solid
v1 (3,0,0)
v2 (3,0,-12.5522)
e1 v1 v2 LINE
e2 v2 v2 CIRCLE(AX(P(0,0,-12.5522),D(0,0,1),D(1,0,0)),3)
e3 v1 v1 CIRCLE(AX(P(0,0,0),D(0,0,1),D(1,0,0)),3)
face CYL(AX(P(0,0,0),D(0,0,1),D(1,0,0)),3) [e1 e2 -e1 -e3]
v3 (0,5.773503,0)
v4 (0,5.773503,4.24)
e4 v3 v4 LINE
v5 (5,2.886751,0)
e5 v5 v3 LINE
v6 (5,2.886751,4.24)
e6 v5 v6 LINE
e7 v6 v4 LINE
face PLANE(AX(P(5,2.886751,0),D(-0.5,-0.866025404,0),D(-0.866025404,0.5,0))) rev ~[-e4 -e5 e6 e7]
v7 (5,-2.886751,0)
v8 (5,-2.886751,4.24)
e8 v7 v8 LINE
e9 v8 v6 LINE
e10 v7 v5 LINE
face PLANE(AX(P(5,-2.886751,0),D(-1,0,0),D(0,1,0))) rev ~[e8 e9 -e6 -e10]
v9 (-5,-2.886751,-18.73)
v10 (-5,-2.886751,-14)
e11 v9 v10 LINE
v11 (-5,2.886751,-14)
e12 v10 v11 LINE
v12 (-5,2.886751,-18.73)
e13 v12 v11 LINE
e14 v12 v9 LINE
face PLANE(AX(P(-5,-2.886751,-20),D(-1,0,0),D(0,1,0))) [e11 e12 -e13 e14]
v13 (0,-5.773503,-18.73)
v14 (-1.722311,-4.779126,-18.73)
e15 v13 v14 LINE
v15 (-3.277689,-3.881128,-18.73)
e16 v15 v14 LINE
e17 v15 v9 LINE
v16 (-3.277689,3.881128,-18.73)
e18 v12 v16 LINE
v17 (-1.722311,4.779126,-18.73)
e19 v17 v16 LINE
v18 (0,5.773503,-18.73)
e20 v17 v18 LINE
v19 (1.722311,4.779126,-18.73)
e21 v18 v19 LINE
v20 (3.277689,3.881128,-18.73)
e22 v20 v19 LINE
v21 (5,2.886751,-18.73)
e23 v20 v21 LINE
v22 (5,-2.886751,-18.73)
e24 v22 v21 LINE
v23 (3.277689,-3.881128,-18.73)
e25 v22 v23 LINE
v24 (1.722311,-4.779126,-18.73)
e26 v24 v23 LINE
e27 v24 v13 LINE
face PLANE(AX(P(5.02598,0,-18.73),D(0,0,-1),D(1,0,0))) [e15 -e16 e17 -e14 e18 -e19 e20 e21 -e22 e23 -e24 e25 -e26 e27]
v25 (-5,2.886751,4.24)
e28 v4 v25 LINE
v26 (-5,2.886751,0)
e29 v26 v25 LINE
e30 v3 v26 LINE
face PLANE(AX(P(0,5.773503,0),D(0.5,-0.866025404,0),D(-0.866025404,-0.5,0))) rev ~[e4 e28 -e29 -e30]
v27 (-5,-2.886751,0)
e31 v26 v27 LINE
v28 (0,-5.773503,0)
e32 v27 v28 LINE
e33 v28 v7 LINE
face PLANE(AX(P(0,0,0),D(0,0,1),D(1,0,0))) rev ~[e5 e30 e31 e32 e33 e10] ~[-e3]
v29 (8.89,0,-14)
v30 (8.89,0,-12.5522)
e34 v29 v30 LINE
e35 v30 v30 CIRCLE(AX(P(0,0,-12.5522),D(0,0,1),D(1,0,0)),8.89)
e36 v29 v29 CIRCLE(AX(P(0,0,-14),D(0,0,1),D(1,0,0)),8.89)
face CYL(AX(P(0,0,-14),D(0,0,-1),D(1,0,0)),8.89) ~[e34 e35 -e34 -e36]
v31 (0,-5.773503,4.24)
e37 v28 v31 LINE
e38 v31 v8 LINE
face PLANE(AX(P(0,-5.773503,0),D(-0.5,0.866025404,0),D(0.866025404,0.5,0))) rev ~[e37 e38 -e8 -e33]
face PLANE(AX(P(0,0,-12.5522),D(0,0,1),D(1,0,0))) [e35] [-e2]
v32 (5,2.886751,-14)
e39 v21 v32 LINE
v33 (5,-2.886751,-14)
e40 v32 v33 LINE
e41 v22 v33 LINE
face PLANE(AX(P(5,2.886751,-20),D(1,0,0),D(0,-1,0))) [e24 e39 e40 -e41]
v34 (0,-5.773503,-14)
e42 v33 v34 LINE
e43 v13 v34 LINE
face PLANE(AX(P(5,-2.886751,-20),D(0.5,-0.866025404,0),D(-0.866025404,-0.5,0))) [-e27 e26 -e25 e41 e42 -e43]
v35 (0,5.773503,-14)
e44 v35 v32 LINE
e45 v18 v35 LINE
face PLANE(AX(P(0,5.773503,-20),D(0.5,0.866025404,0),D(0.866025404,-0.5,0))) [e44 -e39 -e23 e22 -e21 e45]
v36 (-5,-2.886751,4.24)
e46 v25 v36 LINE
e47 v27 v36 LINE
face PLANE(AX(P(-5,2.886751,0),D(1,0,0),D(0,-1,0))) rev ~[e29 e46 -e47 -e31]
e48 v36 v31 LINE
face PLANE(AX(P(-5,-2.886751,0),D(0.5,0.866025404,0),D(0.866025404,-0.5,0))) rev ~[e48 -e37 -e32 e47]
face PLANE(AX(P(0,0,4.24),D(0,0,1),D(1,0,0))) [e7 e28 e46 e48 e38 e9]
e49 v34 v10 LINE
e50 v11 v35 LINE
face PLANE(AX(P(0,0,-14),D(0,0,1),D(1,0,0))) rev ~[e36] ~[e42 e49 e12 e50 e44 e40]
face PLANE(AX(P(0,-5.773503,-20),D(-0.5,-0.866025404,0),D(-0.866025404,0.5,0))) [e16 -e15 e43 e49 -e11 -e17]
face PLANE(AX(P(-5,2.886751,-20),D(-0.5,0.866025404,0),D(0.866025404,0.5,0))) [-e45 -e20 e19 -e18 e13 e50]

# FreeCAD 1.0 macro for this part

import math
import FreeCAD as App
import Part
import Sketcher
Q = App.Units.Quantity


def add_polygon(sketch, points):
    """Adds a closed chain of lines whose ends are joined by coincident constraints."""
    first, n = sketch.GeometryCount, len(points)
    for a, b in zip(points, points[1:] + points[:1]):
        sketch.addGeometry(Part.LineSegment(App.Vector(*a, 0), App.Vector(*b, 0)), False)
    for i in range(n):
        sketch.addConstraint(Sketcher.Constraint("Coincident", first + i, 2, first + (i + 1) % n, 1))

doc = App.newDocument("Part")
params = doc.addObject("Spreadsheet::Sheet", "Params")
for row, (alias, value) in enumerate([
    ("pad1_length", "20 mm"),
    ("pad2_length", "4.24 mm"),
    ("pad3_length", "6 mm"),
    ("sketch4_diameter", "0.7 in"),
    ("pad4_length", "0.057 in"),
    ("sketch5_radius", "0.2 in"),
    ("pocket1_length", "0.05 in"),
], start=1):
    params.set(f"A{row}", alias)
    params.set(f"B{row}", "=" + value)
    params.setAlias(f"B{row}", alias)

body = doc.addObject("PartDesign::Body", "Body")

# Sketch on XY plane
sketch1 = body.newObject("Sketcher::SketchObject", "Sketch")
sketch1.AttachmentSupport = (doc.getObject("XY_Plane"), [""])
sketch1.MapMode = "FlatFace"
sketch1.addGeometry(Part.Circle(App.Vector(0, 0, 0), App.Vector(0, 0, 1), 3), False)
sketch1.addConstraint([
    Sketcher.Constraint("Coincident", 0, 3, -1, 1),
    Sketcher.Constraint("Diameter", 0, 6.0),
])
pad1 = body.newObject("PartDesign::Pad", "Pad")
pad1.Profile = sketch1
pad1.setExpression("Length", "Params.pad1_length")
pad1.Reversed = True

# Sketch on XY plane
sketch2 = body.newObject("Sketcher::SketchObject", "Sketch001")
sketch2.AttachmentSupport = (doc.getObject("XY_Plane"), [""])
sketch2.MapMode = "FlatFace"
add_polygon(sketch2, [(5, 3), (0, 6), (-5, 3), (-5, -3), (0, -6), (5, -3)])  # lines 0-5
sketch2.addConstraint([
    Sketcher.Constraint("Vertical", 2),
    Sketcher.Constraint("Vertical", 5),
    Sketcher.Constraint("Symmetric", 0, 2, 3, 2, -1, 1),
    Sketcher.Constraint("Symmetric", 1, 2, 4, 2, -1, 1),
    Sketcher.Constraint("PointOnObject", 0, 2, -2),
    Sketcher.Constraint("Parallel", 0, 3),
    Sketcher.Constraint("Horizontal", 2, 2, 4, 2),
    Sketcher.Constraint("Angle", 0, Q("150 deg")),
    Sketcher.Constraint("DistanceX", 1, 2, -1, 1, 5.0),
    Sketcher.Constraint("DistanceY", 2, 2, 2, 1, 5.773503),
])
pad2 = body.newObject("PartDesign::Pad", "Pad001")
pad2.Profile = sketch2
pad2.setExpression("Length", "Params.pad2_length")

# Sketch on XY plane
sketch3 = body.newObject("Sketcher::SketchObject", "Sketch002")
sketch3.AttachmentSupport = (doc.getObject("XY_Plane"), [""])
sketch3.MapMode = "FlatFace"
sketch3.AttachmentOffset = App.Placement(App.Vector(0, 0, -20), App.Rotation())
add_polygon(sketch3, [(5, -3), (0, -6), (-5, -3), (-5, 3), (0, 6), (5, 3)])  # lines 0-5
sketch3.addConstraint([
    Sketcher.Constraint("Vertical", 2),
    Sketcher.Constraint("Vertical", 5),
    Sketcher.Constraint("Symmetric", 0, 2, 3, 2, -1, 1),
    Sketcher.Constraint("Symmetric", 1, 2, 4, 2, -1, 1),
    Sketcher.Constraint("PointOnObject", 0, 2, -2),
    Sketcher.Constraint("Parallel", 0, 3),
    Sketcher.Constraint("Horizontal", 2, 2, 4, 2),
    Sketcher.Constraint("Angle", 0, Q("-150 deg")),
    Sketcher.Constraint("DistanceX", 1, 2, -1, 1, 5.0),
    Sketcher.Constraint("DistanceY", 2, 1, 2, 2, 5.773503),
])
pad3 = body.newObject("PartDesign::Pad", "Pad002")
pad3.Profile = sketch3
pad3.setExpression("Length", "Params.pad3_length")

# Sketch on XY plane
sketch4 = body.newObject("Sketcher::SketchObject", "Sketch003")
sketch4.AttachmentSupport = (doc.getObject("XY_Plane"), [""])
sketch4.MapMode = "FlatFace"
sketch4.AttachmentOffset = App.Placement(App.Vector(0, 0, -14), App.Rotation())
sketch4.addGeometry(Part.Circle(App.Vector(0, 0, 0), App.Vector(0, 0, 1), 9), False)
sketch4.addConstraint([
    Sketcher.Constraint("Coincident", 0, 3, -1, 1),
    Sketcher.Constraint("Diameter", 0, Q("0.7 in")),
])
sketch4.setExpression("Constraints[1]", "Params.sketch4_diameter")
pad4 = body.newObject("PartDesign::Pad", "Pad003")
pad4.Profile = sketch4
pad4.setExpression("Length", "Params.pad4_length")

# Sketch on XY plane
sketch5 = body.newObject("Sketcher::SketchObject", "Sketch004")
sketch5.AttachmentSupport = (doc.getObject("XY_Plane"), [""])
sketch5.MapMode = "FlatFace"
sketch5.AttachmentOffset = App.Placement(App.Vector(0, 0, -20), App.Rotation())
sketch5.addGeometry([
    Part.ArcOfCircle(Part.Circle(App.Vector(0, 0, 0), App.Vector(0, 0, 1), 5.1), math.radians(0), math.radians(10.18)),  # 0
    Part.ArcOfCircle(Part.Circle(App.Vector(0, 0, 0), App.Vector(0, 0, 1), 5.1), math.radians(-10.18), math.radians(0)),  # 1
    Part.LineSegment(App.Vector(5, -0.9, 0), App.Vector(5, -2.9, 0)),  # 2
    Part.LineSegment(App.Vector(5, -2.9, 0), App.Vector(3.3, -3.9, 0)),  # 3
    Part.ArcOfCircle(Part.Circle(App.Vector(0, 0, 0), App.Vector(0, 0, 1), 5.1), math.radians(-70), math.radians(-50)),  # 4
    Part.LineSegment(App.Vector(1.7, -4.8, 0), App.Vector(0, -5.8, 0)),  # 5
    Part.LineSegment(App.Vector(0, -5.8, 0), App.Vector(-1.7, -4.8, 0)),  # 6
    Part.ArcOfCircle(Part.Circle(App.Vector(0, 0, 0), App.Vector(0, 0, 1), 5.1), math.radians(-130), math.radians(-110)),  # 7
    Part.LineSegment(App.Vector(-3.3, -3.9, 0), App.Vector(-5, -2.9, 0)),  # 8
    Part.LineSegment(App.Vector(-5, -2.9, 0), App.Vector(-5, -0.9, 0)),  # 9
    Part.ArcOfCircle(Part.Circle(App.Vector(0, 0, 0), App.Vector(0, 0, 1), 5.1), math.radians(170), math.radians(190)),  # 10
    Part.LineSegment(App.Vector(-5, 0.9, 0), App.Vector(-5, 2.9, 0)),  # 11
    Part.LineSegment(App.Vector(-5, 2.9, 0), App.Vector(-3.3, 3.9, 0)),  # 12
    Part.ArcOfCircle(Part.Circle(App.Vector(0, 0, 0), App.Vector(0, 0, 1), 5.1), math.radians(110), math.radians(130)),  # 13
    Part.LineSegment(App.Vector(-1.7, 4.8, 0), App.Vector(0, 5.8, 0)),  # 14
    Part.LineSegment(App.Vector(0, 5.8, 0), App.Vector(1.7, 4.8, 0)),  # 15
    Part.ArcOfCircle(Part.Circle(App.Vector(0, 0, 0), App.Vector(0, 0, 1), 5.1), math.radians(50), math.radians(70)),  # 16
    Part.LineSegment(App.Vector(3.3, 3.9, 0), App.Vector(5, 2.9, 0)),  # 17
    Part.LineSegment(App.Vector(5, 2.9, 0), App.Vector(5, 0.9, 0)),  # 18
], False)
sketch5.addConstraint([
    Sketcher.Constraint("Tangent", 0, 1, 1, 2),
    Sketcher.Constraint("Coincident", 1, 1, 2, 1),
    Sketcher.Constraint("Coincident", 2, 2, 3, 1),
    Sketcher.Constraint("Coincident", 3, 2, 4, 2),
    Sketcher.Constraint("Coincident", 4, 1, 5, 1),
    Sketcher.Constraint("Coincident", 5, 2, 6, 1),
    Sketcher.Constraint("Coincident", 6, 2, 7, 2),
    Sketcher.Constraint("Coincident", 7, 1, 8, 1),
    Sketcher.Constraint("Coincident", 8, 2, 9, 1),
    Sketcher.Constraint("Coincident", 9, 2, 10, 2),
    Sketcher.Constraint("Coincident", 10, 1, 11, 1),
    Sketcher.Constraint("Coincident", 11, 2, 12, 1),
    Sketcher.Constraint("Coincident", 12, 2, 13, 2),
    Sketcher.Constraint("Coincident", 13, 1, 14, 1),
    Sketcher.Constraint("Coincident", 14, 2, 15, 1),
    Sketcher.Constraint("Coincident", 15, 2, 16, 2),
    Sketcher.Constraint("Coincident", 16, 1, 17, 1),
    Sketcher.Constraint("Coincident", 17, 2, 18, 1),
    Sketcher.Constraint("Coincident", 18, 2, 0, 2),
    Sketcher.Constraint("Vertical", 2),
    Sketcher.Constraint("Vertical", 9),
    Sketcher.Constraint("Vertical", 11),
    Sketcher.Constraint("Vertical", 18),
    Sketcher.Constraint("Coincident", 0, 3, -1, 1),
    Sketcher.Constraint("Coincident", 4, 3, -1, 1),
    Sketcher.Constraint("Coincident", 7, 3, -1, 1),
    Sketcher.Constraint("Coincident", 10, 3, -1, 1),
    Sketcher.Constraint("Coincident", 13, 3, -1, 1),
    Sketcher.Constraint("Coincident", 16, 3, -1, 1),
    Sketcher.Constraint("Equal", 0, 1),
    Sketcher.Constraint("Equal", 1, 4),
    Sketcher.Constraint("Equal", 4, 7),
    Sketcher.Constraint("Equal", 7, 10),
    Sketcher.Constraint("Equal", 10, 13),
    Sketcher.Constraint("Equal", 13, 16),
    Sketcher.Constraint("Symmetric", 2, 2, 11, 2, -1, 1),
    Sketcher.Constraint("Symmetric", 5, 2, 14, 2, -1, 1),
    Sketcher.Constraint("Symmetric", 8, 2, 17, 2, -1, 1),
    Sketcher.Constraint("Symmetric", 2, 2, 8, 2, -2),
    Sketcher.Constraint("PointOnObject", 0, 1, -1),
    Sketcher.Constraint("PointOnObject", 5, 2, -2),
    Sketcher.Constraint("Parallel", 3, 5),
    Sketcher.Constraint("Parallel", 6, 8),
    Sketcher.Constraint("Parallel", 5, 12),
    Sketcher.Constraint("Parallel", 12, 14),
    Sketcher.Constraint("Parallel", 8, 15),
    Sketcher.Constraint("Parallel", 15, 17),
    Sketcher.Constraint("Horizontal", 4, 1, 6, 2),
    Sketcher.Constraint("Equal", 3, 5),
    Sketcher.Constraint("Radius", 0, Q("0.2 in")),
    Sketcher.Constraint("Angle", 3, Q("-150 deg")),
    Sketcher.Constraint("DistanceX", -1, 1, 1, 1, 5.0),
    Sketcher.Constraint("DistanceY", 2, 2, 2, 1, 1.988754),
])
sketch5.setExpression("Constraints[49]", "Params.sketch5_radius")
pocket1 = body.newObject("PartDesign::Pocket", "Pocket")
pocket1.Profile = sketch5
pocket1.setExpression("Length", "Params.pocket1_length")
pocket1.Reversed = True

doc.recompute()
